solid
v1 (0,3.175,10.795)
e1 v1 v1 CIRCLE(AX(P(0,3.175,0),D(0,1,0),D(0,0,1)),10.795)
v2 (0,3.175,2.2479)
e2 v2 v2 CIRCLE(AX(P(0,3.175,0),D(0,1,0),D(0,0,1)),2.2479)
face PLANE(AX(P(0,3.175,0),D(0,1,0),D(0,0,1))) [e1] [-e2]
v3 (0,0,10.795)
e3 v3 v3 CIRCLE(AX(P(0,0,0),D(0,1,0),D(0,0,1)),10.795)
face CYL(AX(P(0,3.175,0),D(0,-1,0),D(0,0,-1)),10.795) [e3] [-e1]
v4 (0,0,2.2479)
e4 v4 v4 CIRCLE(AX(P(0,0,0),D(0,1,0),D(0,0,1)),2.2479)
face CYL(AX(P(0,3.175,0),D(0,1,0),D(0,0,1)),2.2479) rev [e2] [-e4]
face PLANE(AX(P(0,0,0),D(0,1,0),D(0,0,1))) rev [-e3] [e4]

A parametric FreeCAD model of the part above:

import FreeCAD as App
import Part
import Sketcher
Q = App.Units.Quantity

doc = App.newDocument("Part")
params = doc.addObject("Spreadsheet::Sheet", "Params")
for row, (alias, value) in enumerate([
    ("sketch1_diameter", "0.85 in"),
    ("pad1_length", "0.125 in"),
    ("sketch2_diameter", "0.177 in"),
    ("hole_diameter", "0.177 in"),
    ("hole_depth", "0.4 in"),
], start=1):
    params.set(f"A{row}", alias)
    params.set(f"B{row}", "=" + value)
    params.setAlias(f"B{row}", alias)

body = doc.addObject("PartDesign::Body", "Body")

# Sketch on XZ plane
sketch1 = body.newObject("Sketcher::SketchObject", "Sketch")
sketch1.AttachmentSupport = (doc.getObject("XZ_Plane"), [""])
sketch1.MapMode = "FlatFace"
sketch1.addGeometry(Part.Circle(App.Vector(0, 0, 0), App.Vector(0, 0, 1), 10.795), False)
sketch1.addConstraint([
    Sketcher.Constraint("Coincident", 0, 3, -1, 1),
    Sketcher.Constraint("Diameter", 0, Q("0.85 in")),
])
sketch1.setExpression("Constraints[1]", "Params.sketch1_diameter")
pad1 = body.newObject("PartDesign::Pad", "Pad")
pad1.Profile = sketch1
pad1.setExpression("Length", "Params.pad1_length")
pad1.Reversed = True

# Sketch on XZ plane
sketch2 = body.newObject("Sketcher::SketchObject", "Sketch001")
sketch2.AttachmentSupport = (doc.getObject("XZ_Plane"), [""])
sketch2.MapMode = "FlatFace"
sketch2.AttachmentOffset = App.Placement(App.Vector(0, 0, -0.125 * 25.4), App.Rotation())
sketch2.addGeometry(Part.Circle(App.Vector(0, 0, 0), App.Vector(0, 0, 1), 2.2479), False)
sketch2.addConstraint([
    Sketcher.Constraint("Coincident", 0, 3, -1, 1),
    Sketcher.Constraint("Diameter", 0, Q("0.177 in")),
])
sketch2.setExpression("Constraints[1]", "Params.sketch2_diameter")
doc.recompute()
hole = body.newObject("PartDesign::Hole", "Hole")
hole.Profile = sketch2
hole.ThreadType = "None"
hole.setExpression("Diameter", "Params.hole_diameter")
hole.DepthType = "Dimension"
hole.setExpression("Depth", "Params.hole_depth")
hole.DrillPoint = "Angled"
hole.DrillPointAngle = 118
hole.Reversed = True

doc.recompute()
